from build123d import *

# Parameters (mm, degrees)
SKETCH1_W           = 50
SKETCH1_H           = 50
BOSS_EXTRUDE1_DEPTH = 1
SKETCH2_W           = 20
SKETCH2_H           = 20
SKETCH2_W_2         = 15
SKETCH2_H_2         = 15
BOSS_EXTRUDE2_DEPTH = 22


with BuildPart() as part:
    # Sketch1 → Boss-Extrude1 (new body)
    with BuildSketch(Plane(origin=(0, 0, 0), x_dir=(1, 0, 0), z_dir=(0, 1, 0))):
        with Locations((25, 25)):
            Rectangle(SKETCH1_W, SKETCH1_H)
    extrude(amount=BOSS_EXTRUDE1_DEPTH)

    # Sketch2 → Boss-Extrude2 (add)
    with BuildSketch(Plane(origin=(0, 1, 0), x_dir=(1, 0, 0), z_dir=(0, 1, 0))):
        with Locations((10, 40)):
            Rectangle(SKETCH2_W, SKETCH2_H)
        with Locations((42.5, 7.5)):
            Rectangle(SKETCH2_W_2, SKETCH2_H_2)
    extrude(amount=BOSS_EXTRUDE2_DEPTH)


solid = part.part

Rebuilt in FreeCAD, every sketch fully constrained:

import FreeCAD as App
import Part
import Sketcher
Q = App.Units.Quantity

doc = App.newDocument("Part")
body = doc.addObject("PartDesign::Body", "Body")

sketch1 = body.newObject("Sketcher::SketchObject", "Sketch")
sketch1.AttachmentSupport = (doc.getObject("XZ_Plane"), [""])
sketch1.MapMode = "FlatFace"
sketch1.addGeometry(Part.LineSegment(App.Vector(0, -50, 0), App.Vector(0, 0, 0)), False)
sketch1.addGeometry(Part.LineSegment(App.Vector(0, 0, 0), App.Vector(50, 0, 0)), False)
sketch1.addGeometry(Part.LineSegment(App.Vector(50, 0, 0), App.Vector(50, -50, 0)), False)
sketch1.addGeometry(Part.LineSegment(App.Vector(50, -50, 0), App.Vector(0, -50, 0)), False)
sketch1.addConstraint(Sketcher.Constraint("Coincident", 0, 2, 1, 1))
sketch1.addConstraint(Sketcher.Constraint("Coincident", 1, 2, 2, 1))
sketch1.addConstraint(Sketcher.Constraint("Coincident", 2, 2, 3, 1))
sketch1.addConstraint(Sketcher.Constraint("Coincident", 3, 2, 0, 1))
sketch1.addConstraint(Sketcher.Constraint("Vertical", 0))
sketch1.addConstraint(Sketcher.Constraint("Horizontal", 1))
sketch1.addConstraint(Sketcher.Constraint("Vertical", 2))
sketch1.addConstraint(Sketcher.Constraint("Horizontal", 3))
sketch1.addConstraint(Sketcher.Constraint("Coincident", 0, 2, -1, 1))
sketch1.addConstraint(Sketcher.Constraint("Equal", 3, 0))
sketch1.addConstraint(Sketcher.Constraint("DistanceX", 1, 1, 1, 2, Q("50 mm")))
pad1 = body.newObject("PartDesign::Pad", "Pad")
pad1.Profile = sketch1
pad1.Length = 1
pad1.Reversed = True

sketch2 = body.newObject("Sketcher::SketchObject", "Sketch001")
sketch2.AttachmentSupport = (doc.getObject("XZ_Plane"), [""])
sketch2.MapMode = "FlatFace"
sketch2.AttachmentOffset = App.Placement(App.Vector(0, 0, -1), App.Rotation())
sketch2.addGeometry(Part.LineSegment(App.Vector(0, -50, 0), App.Vector(0, -30, 0)), False)
sketch2.addGeometry(Part.LineSegment(App.Vector(0, -30, 0), App.Vector(20, -30, 0)), False)
sketch2.addGeometry(Part.LineSegment(App.Vector(20, -30, 0), App.Vector(20, -50, 0)), False)
sketch2.addGeometry(Part.LineSegment(App.Vector(20, -50, 0), App.Vector(0, -50, 0)), False)
sketch2.addGeometry(Part.LineSegment(App.Vector(35, -15, 0), App.Vector(35, 0, 0)), False)
sketch2.addGeometry(Part.LineSegment(App.Vector(35, 0, 0), App.Vector(50, 0, 0)), False)
sketch2.addGeometry(Part.LineSegment(App.Vector(50, 0, 0), App.Vector(50, -15, 0)), False)
sketch2.addGeometry(Part.LineSegment(App.Vector(50, -15, 0), App.Vector(35, -15, 0)), False)
sketch2.addConstraint(Sketcher.Constraint("Coincident", 0, 2, 1, 1))
sketch2.addConstraint(Sketcher.Constraint("Coincident", 1, 2, 2, 1))
sketch2.addConstraint(Sketcher.Constraint("Coincident", 2, 2, 3, 1))
sketch2.addConstraint(Sketcher.Constraint("Coincident", 3, 2, 0, 1))
sketch2.addConstraint(Sketcher.Constraint("Coincident", 4, 2, 5, 1))
sketch2.addConstraint(Sketcher.Constraint("Coincident", 5, 2, 6, 1))
sketch2.addConstraint(Sketcher.Constraint("Coincident", 6, 2, 7, 1))
sketch2.addConstraint(Sketcher.Constraint("Coincident", 7, 2, 4, 1))
sketch2.addConstraint(Sketcher.Constraint("Vertical", 0))
sketch2.addConstraint(Sketcher.Constraint("Horizontal", 1))
sketch2.addConstraint(Sketcher.Constraint("Vertical", 2))
sketch2.addConstraint(Sketcher.Constraint("Horizontal", 3))
sketch2.addConstraint(Sketcher.Constraint("Vertical", 4))
sketch2.addConstraint(Sketcher.Constraint("Horizontal", 5))
sketch2.addConstraint(Sketcher.Constraint("Vertical", 6))
sketch2.addConstraint(Sketcher.Constraint("Horizontal", 7))
sketch2.addConstraint(Sketcher.Constraint("PointOnObject", 0, 2, -2))
sketch2.addConstraint(Sketcher.Constraint("PointOnObject", 4, 2, -1))
sketch2.addConstraint(Sketcher.Constraint("Equal", 3, 0))
sketch2.addConstraint(Sketcher.Constraint("Equal", 7, 4))
sketch2.addConstraint(Sketcher.Constraint("DistanceX", 1, 1, 1, 2, Q("20 mm")))
sketch2.addConstraint(Sketcher.Constraint("DistanceX", 5, 1, 5, 2, Q("15 mm")))
sketch2.addConstraint(Sketcher.Constraint("DistanceY", 0, 2, -1, 1, Q("30 mm")))
sketch2.addConstraint(Sketcher.Constraint("DistanceX", -1, 1, 4, 2, Q("35 mm")))
pad2 = body.newObject("PartDesign::Pad", "Pad001")
pad2.Profile = sketch2
pad2.Length = 22
pad2.Reversed = True

doc.recompute()
